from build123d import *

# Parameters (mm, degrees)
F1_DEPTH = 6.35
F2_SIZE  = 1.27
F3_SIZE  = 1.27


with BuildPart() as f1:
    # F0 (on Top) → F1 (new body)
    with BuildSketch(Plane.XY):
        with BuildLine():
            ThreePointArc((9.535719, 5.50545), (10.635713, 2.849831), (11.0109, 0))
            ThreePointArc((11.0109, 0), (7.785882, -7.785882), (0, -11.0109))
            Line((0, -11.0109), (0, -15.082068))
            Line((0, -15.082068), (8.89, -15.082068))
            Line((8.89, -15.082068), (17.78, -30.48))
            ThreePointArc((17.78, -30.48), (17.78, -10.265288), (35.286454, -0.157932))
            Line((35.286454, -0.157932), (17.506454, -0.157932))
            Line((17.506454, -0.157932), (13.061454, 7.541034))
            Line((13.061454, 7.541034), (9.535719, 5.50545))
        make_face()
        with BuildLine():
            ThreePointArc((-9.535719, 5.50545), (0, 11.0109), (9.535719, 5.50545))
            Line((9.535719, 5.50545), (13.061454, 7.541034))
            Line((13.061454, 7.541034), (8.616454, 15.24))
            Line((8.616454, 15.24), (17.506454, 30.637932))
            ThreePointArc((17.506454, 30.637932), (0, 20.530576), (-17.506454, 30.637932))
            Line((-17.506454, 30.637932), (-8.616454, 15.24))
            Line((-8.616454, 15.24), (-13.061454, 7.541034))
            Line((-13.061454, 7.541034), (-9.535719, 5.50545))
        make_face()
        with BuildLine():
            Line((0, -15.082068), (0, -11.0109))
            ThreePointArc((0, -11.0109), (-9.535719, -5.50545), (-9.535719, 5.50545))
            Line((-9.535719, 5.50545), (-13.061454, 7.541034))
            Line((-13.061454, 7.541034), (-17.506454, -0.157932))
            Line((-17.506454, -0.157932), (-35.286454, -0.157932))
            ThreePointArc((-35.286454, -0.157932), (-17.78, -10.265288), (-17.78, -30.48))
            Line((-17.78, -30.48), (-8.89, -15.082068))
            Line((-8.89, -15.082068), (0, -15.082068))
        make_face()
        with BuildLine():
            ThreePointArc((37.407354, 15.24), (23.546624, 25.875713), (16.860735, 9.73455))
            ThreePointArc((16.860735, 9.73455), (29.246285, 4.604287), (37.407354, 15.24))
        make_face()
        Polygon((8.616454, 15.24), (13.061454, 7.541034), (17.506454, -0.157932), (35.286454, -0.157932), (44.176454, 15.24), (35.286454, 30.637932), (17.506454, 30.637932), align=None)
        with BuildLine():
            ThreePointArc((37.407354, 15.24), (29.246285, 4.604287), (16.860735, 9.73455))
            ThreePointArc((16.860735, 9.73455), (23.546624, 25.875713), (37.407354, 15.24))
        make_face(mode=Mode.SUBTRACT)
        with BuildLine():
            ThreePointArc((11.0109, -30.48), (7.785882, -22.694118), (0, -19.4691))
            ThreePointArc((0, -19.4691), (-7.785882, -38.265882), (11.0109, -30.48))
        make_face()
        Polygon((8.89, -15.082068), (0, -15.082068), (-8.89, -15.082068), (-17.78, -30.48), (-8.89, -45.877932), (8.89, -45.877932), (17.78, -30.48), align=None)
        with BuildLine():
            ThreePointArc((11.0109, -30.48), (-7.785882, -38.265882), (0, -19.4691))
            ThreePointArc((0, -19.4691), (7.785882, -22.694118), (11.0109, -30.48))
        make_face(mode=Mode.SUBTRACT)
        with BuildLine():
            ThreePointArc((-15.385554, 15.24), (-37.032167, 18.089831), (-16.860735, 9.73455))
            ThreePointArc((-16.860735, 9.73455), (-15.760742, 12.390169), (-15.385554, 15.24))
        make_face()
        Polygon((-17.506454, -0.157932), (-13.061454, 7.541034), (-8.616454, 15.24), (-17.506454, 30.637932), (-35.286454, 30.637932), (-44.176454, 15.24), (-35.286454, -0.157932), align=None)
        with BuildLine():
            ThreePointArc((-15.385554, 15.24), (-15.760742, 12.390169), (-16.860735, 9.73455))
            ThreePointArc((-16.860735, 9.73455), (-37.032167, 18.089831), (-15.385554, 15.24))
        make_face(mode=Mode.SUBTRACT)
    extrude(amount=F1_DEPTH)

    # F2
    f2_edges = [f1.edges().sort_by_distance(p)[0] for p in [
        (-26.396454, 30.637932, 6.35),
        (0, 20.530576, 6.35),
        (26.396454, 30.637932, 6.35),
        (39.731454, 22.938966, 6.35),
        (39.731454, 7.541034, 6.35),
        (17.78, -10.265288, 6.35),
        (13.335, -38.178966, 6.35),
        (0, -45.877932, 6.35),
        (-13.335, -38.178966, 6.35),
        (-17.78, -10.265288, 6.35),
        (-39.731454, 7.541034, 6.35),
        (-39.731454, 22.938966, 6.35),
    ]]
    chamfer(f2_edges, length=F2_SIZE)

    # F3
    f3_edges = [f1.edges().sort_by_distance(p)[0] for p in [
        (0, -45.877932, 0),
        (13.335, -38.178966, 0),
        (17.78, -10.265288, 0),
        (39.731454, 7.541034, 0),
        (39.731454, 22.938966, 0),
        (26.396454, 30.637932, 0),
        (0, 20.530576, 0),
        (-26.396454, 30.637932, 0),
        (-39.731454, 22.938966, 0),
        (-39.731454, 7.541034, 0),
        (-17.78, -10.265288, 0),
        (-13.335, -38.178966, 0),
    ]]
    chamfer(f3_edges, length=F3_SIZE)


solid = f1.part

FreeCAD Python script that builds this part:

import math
import FreeCAD as App
import Part
import Sketcher

V = App.Vector
Q = App.Units.Quantity


def edges_at(feature, points):
    """Names of the edges that pass closest to the given points."""
    edges = feature.Shape.Edges
    near = lambda p: min(range(len(edges)), key=lambda i: edges[i].distToShape(Part.Vertex(*p))[0])
    return sorted({f"Edge{near(p) + 1}" for p in points})

doc = App.newDocument("Part")
body = doc.addObject("PartDesign::Body", "Body")

# Sketch on XY plane
sketch1 = body.newObject("Sketcher::SketchObject", "Sketch")
sketch1.AttachmentSupport = (doc.getObject("XY_Plane"), [""])
sketch1.MapMode = "FlatFace"
sketch1.addGeometry([
    Part.ArcOfCircle(Part.Circle(V(35, -20, 0), V(0, 0, 1), 20), math.radians(90), math.radians(210)),  # 0
    Part.LineSegment(V(35, 0, 0), V(44, 15, 0)),  # 1
    Part.LineSegment(V(44, 15, 0), V(35, 31, 0)),  # 2
    Part.LineSegment(V(35, 31, 0), V(18, 31, 0)),  # 3
    Part.ArcOfCircle(Part.Circle(V(0, 41, 0), V(0, 0, 1), 20), math.radians(-150), math.radians(-30)),  # 4
    Part.LineSegment(V(-18, 31, 0), V(-35, 31, 0)),  # 5
    Part.LineSegment(V(-35, 31, 0), V(-44, 15, 0)),  # 6
    Part.LineSegment(V(-44, 15, 0), V(-35, 0, 0)),  # 7
    Part.ArcOfCircle(Part.Circle(V(-35, -20, 0), V(0, 0, 1), 20), math.radians(-30), math.radians(90)),  # 8
    Part.LineSegment(V(-18, -30, 0), V(-9, -46, 0)),  # 9
    Part.LineSegment(V(-9, -46, 0), V(9, -46, 0)),  # 10
    Part.LineSegment(V(9, -46, 0), V(18, -30, 0)),  # 11
    Part.ArcOfCircle(Part.Circle(V(0, -30, 0), V(0, 0, 1), 11), math.radians(0), math.radians(90)),  # 12
    Part.ArcOfCircle(Part.Circle(V(0, -30, 0), V(0, 0, 1), 11), math.radians(90), math.radians(360)),  # 13
    Part.ArcOfCircle(Part.Circle(V(-26, 15, 0), V(0, 0, 1), 11), math.radians(0), math.radians(330)),  # 14
    Part.ArcOfCircle(Part.Circle(V(-26, 15, 0), V(0, 0, 1), 11), math.radians(-30), math.radians(0)),  # 15
    Part.ArcOfCircle(Part.Circle(V(0, 0, 0), V(0, 0, 1), 11), math.radians(0), math.radians(30)),  # 16
    Part.ArcOfCircle(Part.Circle(V(0, 0, 0), V(0, 0, 1), 11), math.radians(-90), math.radians(0)),  # 17
    Part.ArcOfCircle(Part.Circle(V(0, 0, 0), V(0, 0, 1), 11), math.radians(150), math.radians(270)),  # 18
    Part.ArcOfCircle(Part.Circle(V(0, 0, 0), V(0, 0, 1), 11), math.radians(30), math.radians(150)),  # 19
    Part.ArcOfCircle(Part.Circle(V(26, 15, 0), V(0, 0, 1), 11), math.radians(0), math.radians(210)),  # 20
    Part.ArcOfCircle(Part.Circle(V(26, 15, 0), V(0, 0, 1), 11), math.radians(-150), math.radians(0)),  # 21
], False)
sketch1.addConstraint([
    Sketcher.Constraint("Coincident", 0, 1, 1, 1),
    Sketcher.Constraint("Coincident", 1, 2, 2, 1),
    Sketcher.Constraint("Coincident", 2, 2, 3, 1),
    Sketcher.Constraint("Coincident", 3, 2, 4, 2),
    Sketcher.Constraint("Coincident", 4, 1, 5, 1),
    Sketcher.Constraint("Coincident", 5, 2, 6, 1),
    Sketcher.Constraint("Coincident", 6, 2, 7, 1),
    Sketcher.Constraint("Coincident", 7, 2, 8, 2),
    Sketcher.Constraint("Coincident", 8, 1, 9, 1),
    Sketcher.Constraint("Coincident", 9, 2, 10, 1),
    Sketcher.Constraint("Coincident", 10, 2, 11, 1),
    Sketcher.Constraint("Coincident", 11, 2, 0, 2),
    Sketcher.Constraint("Tangent", 12, 1, 13, 2),
    Sketcher.Constraint("Coincident", 13, 1, 12, 2),
    Sketcher.Constraint("Tangent", 14, 1, 15, 2),
    Sketcher.Constraint("Coincident", 15, 1, 14, 2),
    Sketcher.Constraint("Tangent", 16, 1, 17, 2),
    Sketcher.Constraint("Tangent", 17, 1, 18, 2),
    Sketcher.Constraint("Tangent", 18, 1, 19, 2),
    Sketcher.Constraint("Tangent", 19, 1, 16, 2),
    Sketcher.Constraint("Tangent", 20, 1, 21, 2),
    Sketcher.Constraint("Coincident", 21, 1, 20, 2),
    Sketcher.Constraint("Horizontal", 3),
    Sketcher.Constraint("Horizontal", 5),
    Sketcher.Constraint("Horizontal", 10),
    Sketcher.Constraint("Coincident", 17, 3, -1, 1),
    Sketcher.Constraint("Equal", 0, 4),
    Sketcher.Constraint("Equal", 4, 8),
    Sketcher.Constraint("Equal", 13, 14),
    Sketcher.Constraint("Equal", 14, 17),
    Sketcher.Constraint("Equal", 17, 18),
    Sketcher.Constraint("Equal", 19, 20),
    Sketcher.Constraint("Symmetric", 0, 3, 8, 3, -2),
    Sketcher.Constraint("Symmetric", 14, 3, 20, 3, -2),
    Sketcher.Constraint("Symmetric", 3, 2, 4, 1, -2),
    Sketcher.Constraint("Symmetric", 1, 2, 6, 2, -2),
    Sketcher.Constraint("PointOnObject", 12, 3, -2),
    Sketcher.Constraint("PointOnObject", 13, 1, -2),
    Sketcher.Constraint("PointOnObject", 16, 1, -1),
    Sketcher.Constraint("PointOnObject", 17, 1, -2),
    Sketcher.Constraint("Parallel", 1, 6),
    Sketcher.Constraint("Parallel", 2, 7),
    Sketcher.Constraint("Parallel", 7, 9),
    Sketcher.Constraint("Parallel", 6, 11),
    Sketcher.Constraint("Horizontal", 21, 3, 1, 2),
    Sketcher.Constraint("Horizontal", 13, 3, 8, 1),
    Sketcher.Constraint("Horizontal", 8, 1, 11, 2),
    Sketcher.Constraint("Horizontal", 11, 2, 12, 1),
    Sketcher.Constraint("Horizontal", 6, 2, 14, 1),
    Sketcher.Constraint("Horizontal", 18, 1, 19, 1),
    Sketcher.Constraint("Horizontal", 14, 1, 20, 1),
    Sketcher.Constraint("Horizontal", 15, 1, 21, 1),
    Sketcher.Constraint("Vertical", 0, 1, 2, 2),
    Sketcher.Constraint("Vertical", 8, 3, 5, 2),
    Sketcher.Constraint("Vertical", 5, 2, 7, 2),
    Sketcher.Constraint("Equal", 5, 10),
    Sketcher.Constraint("Equal", 7, 9),
    Sketcher.Constraint("DistanceX", 3, 2, 3, 1, Q("0.7 in")),
    Sketcher.Constraint("Angle", 1, Q("60.000001 deg")),
    Sketcher.Constraint("Distance", 1, Q("0.7 in")),
    Sketcher.Constraint("DistanceY", 12, 3, -1, 1, Q("1.2 in")),
    Sketcher.Constraint("DistanceY", -1, 1, 14, 3, Q("0.6 in")),
    Sketcher.Constraint("Radius", 12, Q("0.4335 in")),
    Sketcher.Constraint("DistanceX", 21, 3, 1, 2, Q("0.7 in")),
    Sketcher.Constraint("Radius", 0, 20.214712),
    Sketcher.Constraint("DistanceY", 18, 1, 15, 1, Q("0.1665 in")),
    Sketcher.Constraint("DistanceY", -1, 1, 15, 1, 9.73455),
])
pad1 = body.newObject("PartDesign::Pad", "Pad")
pad1.Profile = sketch1
pad1.Length = Q("0.25 in")
doc.recompute()

chamfer = body.newObject("PartDesign::Chamfer", "Chamfer")
chamfer.Base = (pad1, edges_at(pad1, [
    (-26.396, 30.638, 6.35),
    (0, 20.531, 6.35),
    (26.396, 30.638, 6.35),
    (39.731, 22.939, 6.35),
    (39.731, 7.541, 6.35),
    (17.78, -10.265, 6.35),
    (13.335, -38.179, 6.35),
    (0, -45.878, 6.35),
    (-13.335, -38.179, 6.35),
    (-17.78, -10.265, 6.35),
    (-39.731, 7.541, 6.35),
    (-39.731, 22.939, 6.35),
]))
chamfer.Size = Q("0.05 in")
doc.recompute()

chamfer2 = body.newObject("PartDesign::Chamfer", "Chamfer001")
chamfer2.Base = (chamfer, edges_at(chamfer, [
    (0, -45.878, 0),
    (13.335, -38.179, 0),
    (17.78, -10.265, 0),
    (39.731, 7.541, 0),
    (39.731, 22.939, 0),
    (26.396, 30.638, 0),
    (0, 20.531, 0),
    (-26.396, 30.638, 0),
    (-39.731, 22.939, 0),
    (-39.731, 7.541, 0),
    (-17.78, -10.265, 0),
    (-13.335, -38.179, 0),
]))
chamfer2.Size = Q("0.05 in")

doc.recompute()
